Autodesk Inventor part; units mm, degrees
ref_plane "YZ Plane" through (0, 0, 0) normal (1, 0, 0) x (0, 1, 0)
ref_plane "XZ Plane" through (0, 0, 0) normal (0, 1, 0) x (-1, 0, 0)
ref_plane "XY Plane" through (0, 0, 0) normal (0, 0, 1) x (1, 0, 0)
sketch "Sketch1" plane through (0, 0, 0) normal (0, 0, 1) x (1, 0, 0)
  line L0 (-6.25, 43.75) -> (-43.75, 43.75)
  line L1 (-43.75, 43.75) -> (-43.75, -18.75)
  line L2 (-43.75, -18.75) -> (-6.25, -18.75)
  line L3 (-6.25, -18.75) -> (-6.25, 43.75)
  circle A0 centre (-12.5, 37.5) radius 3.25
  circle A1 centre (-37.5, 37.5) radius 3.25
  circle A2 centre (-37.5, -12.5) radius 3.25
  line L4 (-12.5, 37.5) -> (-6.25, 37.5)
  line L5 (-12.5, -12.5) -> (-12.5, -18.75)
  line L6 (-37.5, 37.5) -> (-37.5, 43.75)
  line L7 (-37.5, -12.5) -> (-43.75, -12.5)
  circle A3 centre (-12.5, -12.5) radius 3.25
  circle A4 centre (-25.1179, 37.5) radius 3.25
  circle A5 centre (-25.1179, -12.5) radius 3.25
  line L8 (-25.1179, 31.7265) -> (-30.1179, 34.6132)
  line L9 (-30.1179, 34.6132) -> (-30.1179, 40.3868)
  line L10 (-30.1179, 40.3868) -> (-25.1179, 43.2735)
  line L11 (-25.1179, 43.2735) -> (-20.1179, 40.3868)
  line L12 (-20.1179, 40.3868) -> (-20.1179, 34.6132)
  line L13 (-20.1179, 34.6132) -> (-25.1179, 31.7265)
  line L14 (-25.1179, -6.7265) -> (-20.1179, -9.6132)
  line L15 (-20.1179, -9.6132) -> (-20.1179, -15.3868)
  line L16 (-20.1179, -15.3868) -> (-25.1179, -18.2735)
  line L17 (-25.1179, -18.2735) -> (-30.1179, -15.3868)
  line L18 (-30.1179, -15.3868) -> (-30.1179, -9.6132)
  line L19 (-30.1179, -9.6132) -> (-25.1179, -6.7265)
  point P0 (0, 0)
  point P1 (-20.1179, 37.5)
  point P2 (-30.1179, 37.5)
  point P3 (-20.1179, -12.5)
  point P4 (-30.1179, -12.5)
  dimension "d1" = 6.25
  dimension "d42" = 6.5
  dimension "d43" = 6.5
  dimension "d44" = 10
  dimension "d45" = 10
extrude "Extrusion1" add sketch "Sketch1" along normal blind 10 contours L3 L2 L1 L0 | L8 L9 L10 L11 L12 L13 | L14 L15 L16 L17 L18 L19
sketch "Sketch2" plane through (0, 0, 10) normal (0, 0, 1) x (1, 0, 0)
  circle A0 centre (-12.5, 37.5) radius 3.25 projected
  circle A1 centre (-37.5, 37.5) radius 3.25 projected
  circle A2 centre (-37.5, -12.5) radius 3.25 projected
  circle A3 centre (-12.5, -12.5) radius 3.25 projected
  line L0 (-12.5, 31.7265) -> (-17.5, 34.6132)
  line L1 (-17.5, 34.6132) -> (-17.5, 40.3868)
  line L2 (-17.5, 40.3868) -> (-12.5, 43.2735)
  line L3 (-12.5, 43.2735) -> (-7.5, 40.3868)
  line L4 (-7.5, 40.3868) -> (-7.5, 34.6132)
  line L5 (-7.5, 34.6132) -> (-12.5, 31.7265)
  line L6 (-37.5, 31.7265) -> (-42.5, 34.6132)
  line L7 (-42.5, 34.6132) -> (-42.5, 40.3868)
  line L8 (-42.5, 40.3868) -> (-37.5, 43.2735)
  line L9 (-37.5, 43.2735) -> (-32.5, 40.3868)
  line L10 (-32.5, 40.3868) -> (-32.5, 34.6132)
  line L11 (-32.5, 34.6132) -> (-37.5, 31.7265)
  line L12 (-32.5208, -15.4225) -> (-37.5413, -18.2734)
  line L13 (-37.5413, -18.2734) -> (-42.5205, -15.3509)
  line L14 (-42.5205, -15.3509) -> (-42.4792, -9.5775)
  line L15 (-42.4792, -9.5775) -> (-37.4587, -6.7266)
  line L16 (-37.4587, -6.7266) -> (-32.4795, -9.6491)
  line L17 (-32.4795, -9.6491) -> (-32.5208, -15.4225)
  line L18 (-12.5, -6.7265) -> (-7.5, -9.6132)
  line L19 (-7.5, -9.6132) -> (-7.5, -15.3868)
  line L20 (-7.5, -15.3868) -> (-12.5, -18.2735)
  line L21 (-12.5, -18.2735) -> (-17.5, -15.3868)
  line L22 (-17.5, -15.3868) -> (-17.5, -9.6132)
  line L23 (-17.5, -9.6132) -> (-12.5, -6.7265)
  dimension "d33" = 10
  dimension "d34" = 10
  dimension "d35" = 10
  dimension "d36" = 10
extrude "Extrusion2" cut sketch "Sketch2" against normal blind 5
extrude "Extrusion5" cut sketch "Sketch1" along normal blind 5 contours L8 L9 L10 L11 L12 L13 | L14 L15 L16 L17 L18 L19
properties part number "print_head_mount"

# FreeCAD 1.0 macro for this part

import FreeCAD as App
import Part
import Sketcher

V = App.Vector
Q = App.Units.Quantity

doc = App.newDocument("Part")
body = doc.addObject("PartDesign::Body", "Body")

sketch1 = body.newObject("Sketcher::SketchObject", "Sketch")
sketch1.AttachmentSupport = (doc.getObject("XY_Plane"), [""])
sketch1.MapMode = "FlatFace"
sketch1.addGeometry(Part.LineSegment(V(-6.2, 37.5, 0), V(-6.2, 43.8, 0)), False)
sketch1.addGeometry(Part.LineSegment(V(-6.2, 43.8, 0), V(-37.5, 43.8, 0)), False)
sketch1.addGeometry(Part.LineSegment(V(-37.5, 43.8, 0), V(-43.8, 43.8, 0)), False)
sketch1.addGeometry(Part.LineSegment(V(-43.8, 43.8, 0), V(-43.8, -12.5, 0)), False)
sketch1.addGeometry(Part.LineSegment(V(-43.8, -12.5, 0), V(-43.8, -18.8, 0)), False)
sketch1.addGeometry(Part.LineSegment(V(-43.8, -18.8, 0), V(-12.5, -18.8, 0)), False)
sketch1.addGeometry(Part.LineSegment(V(-12.5, -18.8, 0), V(-6.2, -18.8, 0)), False)
sketch1.addGeometry(Part.LineSegment(V(-6.2, -18.8, 0), V(-6.2, 37.5, 0)), False)
sketch1.addGeometry(Part.Circle(V(-37.5, -12.5, 0), V(0, 0, 1), 3.2), False)
sketch1.addGeometry(Part.Circle(V(-12.5, -12.5, 0), V(0, 0, 1), 3.2), False)
sketch1.addGeometry(Part.Circle(V(-37.5, 37.5, 0), V(0, 0, 1), 3.2), False)
sketch1.addGeometry(Part.Circle(V(-12.5, 37.5, 0), V(0, 0, 1), 3.2), False)
sketch1.addGeometry(Part.Circle(V(-25.1, -12.5, 0), V(0, 0, 1), 3.2), False)
sketch1.addGeometry(Part.Circle(V(-25.1, 37.5, 0), V(0, 0, 1), 3.2), False)
sketch1.addConstraint(Sketcher.Constraint("Coincident", 0, 2, 1, 1))
sketch1.addConstraint(Sketcher.Constraint("Coincident", 1, 2, 2, 1))
sketch1.addConstraint(Sketcher.Constraint("Coincident", 2, 2, 3, 1))
sketch1.addConstraint(Sketcher.Constraint("Coincident", 3, 2, 4, 1))
sketch1.addConstraint(Sketcher.Constraint("Coincident", 4, 2, 5, 1))
sketch1.addConstraint(Sketcher.Constraint("Coincident", 5, 2, 6, 1))
sketch1.addConstraint(Sketcher.Constraint("Coincident", 6, 2, 7, 1))
sketch1.addConstraint(Sketcher.Constraint("Coincident", 7, 2, 0, 1))
sketch1.addConstraint(Sketcher.Constraint("Vertical", 0))
sketch1.addConstraint(Sketcher.Constraint("Horizontal", 1))
sketch1.addConstraint(Sketcher.Constraint("Horizontal", 2))
sketch1.addConstraint(Sketcher.Constraint("Vertical", 3))
sketch1.addConstraint(Sketcher.Constraint("Vertical", 4))
sketch1.addConstraint(Sketcher.Constraint("Horizontal", 5))
sketch1.addConstraint(Sketcher.Constraint("Horizontal", 6))
sketch1.addConstraint(Sketcher.Constraint("Vertical", 7))
sketch1.addConstraint(Sketcher.Constraint("Equal", 8, 9))
sketch1.addConstraint(Sketcher.Constraint("Equal", 9, 10))
sketch1.addConstraint(Sketcher.Constraint("Equal", 10, 11))
sketch1.addConstraint(Sketcher.Constraint("Equal", 11, 12))
sketch1.addConstraint(Sketcher.Constraint("Equal", 12, 13))
sketch1.addConstraint(Sketcher.Constraint("Horizontal", 8, 3, 9, 3))
sketch1.addConstraint(Sketcher.Constraint("Horizontal", 10, 3, 11, 3))
sketch1.addConstraint(Sketcher.Constraint("Horizontal", 9, 3, 12, 3))
sketch1.addConstraint(Sketcher.Constraint("Horizontal", 11, 3, 13, 3))
sketch1.addConstraint(Sketcher.Constraint("Horizontal", 12, 3, 3, 2))
sketch1.addConstraint(Sketcher.Constraint("Horizontal", 13, 3, 7, 2))
sketch1.addConstraint(Sketcher.Constraint("Vertical", 8, 3, 10, 3))
sketch1.addConstraint(Sketcher.Constraint("Vertical", 9, 3, 11, 3))
sketch1.addConstraint(Sketcher.Constraint("Vertical", 12, 3, 13, 3))
sketch1.addConstraint(Sketcher.Constraint("Vertical", 10, 3, 1, 2))
sketch1.addConstraint(Sketcher.Constraint("Vertical", 11, 3, 5, 2))
sketch1.addConstraint(Sketcher.Constraint("Equal", 1, 5))
sketch1.addConstraint(Sketcher.Constraint("Equal", 6, 0))
sketch1.addConstraint(Sketcher.Constraint("Equal", 0, 4))
sketch1.addConstraint(Sketcher.Constraint("Diameter", 8, 6.5))
sketch1.addConstraint(Sketcher.Constraint("DistanceX", 2, 2, 2, 1, 6.25))
sketch1.addConstraint(Sketcher.Constraint("DistanceX", 0, 2, -1, 1, 6.25))
sketch1.addConstraint(Sketcher.Constraint("DistanceX", 8, 3, 9, 3, 25.0))
sketch1.addConstraint(Sketcher.Constraint("DistanceY", 8, 3, 10, 3, 50.0))
sketch1.addConstraint(Sketcher.Constraint("DistanceY", 8, 3, -1, 1, 12.5))
sketch1.addConstraint(Sketcher.Constraint("DistanceX", 12, 3, -1, 1, 25.118))
pad1 = body.newObject("PartDesign::Pad", "Pad")
pad1.Profile = sketch1
pad1.Length = 10

sketch2 = body.newObject("Sketcher::SketchObject", "Sketch001")
sketch2.AttachmentSupport = (doc.getObject("XY_Plane"), [""])
sketch2.MapMode = "FlatFace"
sketch2.AttachmentOffset = App.Placement(V(0, 0, 10), App.Rotation())
sketch2.addGeometry(Part.LineSegment(V(-17.5, 34.6, 0), V(-12.5, 31.7, 0)), False)
sketch2.addGeometry(Part.LineSegment(V(-12.5, 31.7, 0), V(-7.5, 34.6, 0)), False)
sketch2.addGeometry(Part.LineSegment(V(-7.5, 34.6, 0), V(-7.5, 40.4, 0)), False)
sketch2.addGeometry(Part.LineSegment(V(-7.5, 40.4, 0), V(-12.5, 43.3, 0)), False)
sketch2.addGeometry(Part.LineSegment(V(-12.5, 43.3, 0), V(-17.5, 40.4, 0)), False)
sketch2.addGeometry(Part.LineSegment(V(-17.5, 40.4, 0), V(-17.5, 34.6, 0)), False)
sketch2.addGeometry(Part.Circle(V(-12.5, 37.5, 0), V(0, 0, 1), 3.2), False)
sketch2.addGeometry(Part.LineSegment(V(-42.5, 34.6, 0), V(-37.5, 31.7, 0)), False)
sketch2.addGeometry(Part.LineSegment(V(-37.5, 31.7, 0), V(-32.5, 34.6, 0)), False)
sketch2.addGeometry(Part.LineSegment(V(-32.5, 34.6, 0), V(-32.5, 40.4, 0)), False)
sketch2.addGeometry(Part.LineSegment(V(-32.5, 40.4, 0), V(-37.5, 43.3, 0)), False)
sketch2.addGeometry(Part.LineSegment(V(-37.5, 43.3, 0), V(-42.5, 40.4, 0)), False)
sketch2.addGeometry(Part.LineSegment(V(-42.5, 40.4, 0), V(-42.5, 34.6, 0)), False)
sketch2.addGeometry(Part.Circle(V(-37.5, 37.5, 0), V(0, 0, 1), 3.2), False)
sketch2.addGeometry(Part.LineSegment(V(-37.5, -18.3, 0), V(-32.5, -15.4, 0)), False)
sketch2.addGeometry(Part.LineSegment(V(-32.5, -15.4, 0), V(-32.5, -9.6, 0)), False)
sketch2.addGeometry(Part.LineSegment(V(-32.5, -9.6, 0), V(-37.5, -6.7, 0)), False)
sketch2.addGeometry(Part.LineSegment(V(-37.5, -6.7, 0), V(-42.5, -9.6, 0)), False)
sketch2.addGeometry(Part.LineSegment(V(-42.5, -9.6, 0), V(-42.5, -15.4, 0)), False)
sketch2.addGeometry(Part.LineSegment(V(-42.5, -15.4, 0), V(-37.5, -18.3, 0)), False)
sketch2.addGeometry(Part.Circle(V(-37.5, -12.5, 0), V(0, 0, 1), 3.2), False)
sketch2.addGeometry(Part.LineSegment(V(-7.5, -9.6, 0), V(-12.5, -6.7, 0)), False)
sketch2.addGeometry(Part.LineSegment(V(-12.5, -6.7, 0), V(-17.5, -9.6, 0)), False)
sketch2.addGeometry(Part.LineSegment(V(-17.5, -9.6, 0), V(-17.5, -15.4, 0)), False)
sketch2.addGeometry(Part.LineSegment(V(-17.5, -15.4, 0), V(-12.5, -18.3, 0)), False)
sketch2.addGeometry(Part.LineSegment(V(-12.5, -18.3, 0), V(-7.5, -15.4, 0)), False)
sketch2.addGeometry(Part.LineSegment(V(-7.5, -15.4, 0), V(-7.5, -9.6, 0)), False)
sketch2.addGeometry(Part.Circle(V(-12.5, -12.5, 0), V(0, 0, 1), 3.2), False)
sketch2.addConstraint(Sketcher.Constraint("Coincident", 0, 2, 1, 1))
sketch2.addConstraint(Sketcher.Constraint("Coincident", 1, 2, 2, 1))
sketch2.addConstraint(Sketcher.Constraint("Coincident", 2, 2, 3, 1))
sketch2.addConstraint(Sketcher.Constraint("Coincident", 3, 2, 4, 1))
sketch2.addConstraint(Sketcher.Constraint("Coincident", 4, 2, 5, 1))
sketch2.addConstraint(Sketcher.Constraint("Coincident", 5, 2, 0, 1))
sketch2.addConstraint(Sketcher.Constraint("Coincident", 7, 2, 8, 1))
sketch2.addConstraint(Sketcher.Constraint("Coincident", 8, 2, 9, 1))
sketch2.addConstraint(Sketcher.Constraint("Coincident", 9, 2, 10, 1))
sketch2.addConstraint(Sketcher.Constraint("Coincident", 10, 2, 11, 1))
sketch2.addConstraint(Sketcher.Constraint("Coincident", 11, 2, 12, 1))
sketch2.addConstraint(Sketcher.Constraint("Coincident", 12, 2, 7, 1))
sketch2.addConstraint(Sketcher.Constraint("Coincident", 14, 2, 15, 1))
sketch2.addConstraint(Sketcher.Constraint("Coincident", 15, 2, 16, 1))
sketch2.addConstraint(Sketcher.Constraint("Coincident", 16, 2, 17, 1))
sketch2.addConstraint(Sketcher.Constraint("Coincident", 17, 2, 18, 1))
sketch2.addConstraint(Sketcher.Constraint("Coincident", 18, 2, 19, 1))
sketch2.addConstraint(Sketcher.Constraint("Coincident", 19, 2, 14, 1))
sketch2.addConstraint(Sketcher.Constraint("Coincident", 21, 2, 22, 1))
sketch2.addConstraint(Sketcher.Constraint("Coincident", 22, 2, 23, 1))
sketch2.addConstraint(Sketcher.Constraint("Coincident", 23, 2, 24, 1))
sketch2.addConstraint(Sketcher.Constraint("Coincident", 24, 2, 25, 1))
sketch2.addConstraint(Sketcher.Constraint("Coincident", 25, 2, 26, 1))
sketch2.addConstraint(Sketcher.Constraint("Coincident", 26, 2, 21, 1))
sketch2.addConstraint(Sketcher.Constraint("Vertical", 2))
sketch2.addConstraint(Sketcher.Constraint("Vertical", 5))
sketch2.addConstraint(Sketcher.Constraint("Vertical", 9))
sketch2.addConstraint(Sketcher.Constraint("Vertical", 12))
sketch2.addConstraint(Sketcher.Constraint("Vertical", 23))
sketch2.addConstraint(Sketcher.Constraint("Vertical", 26))
sketch2.addConstraint(Sketcher.Constraint("Equal", 6, 13))
sketch2.addConstraint(Sketcher.Constraint("Equal", 13, 20))
sketch2.addConstraint(Sketcher.Constraint("Equal", 20, 27))
sketch2.addConstraint(Sketcher.Constraint("Parallel", 0, 3))
sketch2.addConstraint(Sketcher.Constraint("Parallel", 1, 4))
sketch2.addConstraint(Sketcher.Constraint("Parallel", 3, 7))
sketch2.addConstraint(Sketcher.Constraint("Parallel", 4, 8))
sketch2.addConstraint(Sketcher.Constraint("Parallel", 7, 10))
sketch2.addConstraint(Sketcher.Constraint("Parallel", 8, 11))
sketch2.addConstraint(Sketcher.Constraint("Parallel", 14, 17))
sketch2.addConstraint(Sketcher.Constraint("Parallel", 15, 18))
sketch2.addConstraint(Sketcher.Constraint("Parallel", 16, 19))
sketch2.addConstraint(Sketcher.Constraint("Parallel", 10, 21))
sketch2.addConstraint(Sketcher.Constraint("Parallel", 11, 22))
sketch2.addConstraint(Sketcher.Constraint("Parallel", 21, 24))
sketch2.addConstraint(Sketcher.Constraint("Parallel", 22, 25))
sketch2.addConstraint(Sketcher.Constraint("Horizontal", 6, 3, 13, 3))
sketch2.addConstraint(Sketcher.Constraint("Horizontal", 20, 3, 27, 3))
sketch2.addConstraint(Sketcher.Constraint("Horizontal", 2, 2, 4, 2))
sketch2.addConstraint(Sketcher.Constraint("Horizontal", 1, 2, 5, 2))
sketch2.addConstraint(Sketcher.Constraint("Horizontal", 0, 2, 7, 2))
sketch2.addConstraint(Sketcher.Constraint("Horizontal", 5, 2, 8, 2))
sketch2.addConstraint(Sketcher.Constraint("Horizontal", 4, 2, 9, 2))
sketch2.addConstraint(Sketcher.Constraint("Horizontal", 3, 2, 10, 2))
sketch2.addConstraint(Sketcher.Constraint("Horizontal", 9, 2, 11, 2))
sketch2.addConstraint(Sketcher.Constraint("Horizontal", 16, 2, 21, 2))
sketch2.addConstraint(Sketcher.Constraint("Horizontal", 19, 2, 24, 2))
sketch2.addConstraint(Sketcher.Constraint("Horizontal", 23, 2, 25, 2))
sketch2.addConstraint(Sketcher.Constraint("Horizontal", 22, 2, 26, 2))
sketch2.addConstraint(Sketcher.Constraint("Vertical", 13, 3, 20, 3))
sketch2.addConstraint(Sketcher.Constraint("Vertical", 6, 3, 27, 3))
sketch2.addConstraint(Sketcher.Constraint("Vertical", 27, 3, 0, 2))
sketch2.addConstraint(Sketcher.Constraint("Vertical", 0, 2, 3, 2))
sketch2.addConstraint(Sketcher.Constraint("Vertical", 20, 3, 7, 2))
sketch2.addConstraint(Sketcher.Constraint("Vertical", 3, 2, 21, 2))
sketch2.addConstraint(Sketcher.Constraint("Vertical", 5, 2, 22, 2))
sketch2.addConstraint(Sketcher.Constraint("Equal", 12, 23))
sketch2.addConstraint(Sketcher.Constraint("Equal", 11, 14))
sketch2.addConstraint(Sketcher.Constraint("Equal", 14, 15))
sketch2.addConstraint(Sketcher.Constraint("Equal", 15, 16))
sketch2.addConstraint(Sketcher.Constraint("Equal", 16, 17))
sketch2.addConstraint(Sketcher.Constraint("DistanceX", 4, 2, 2, 2, 10.0))
sketch2.addConstraint(Sketcher.Constraint("Diameter", 6, 6.5))
sketch2.addConstraint(Sketcher.Constraint("Angle", 0, Q("-29.9996 deg")))
sketch2.addConstraint(Sketcher.Constraint("DistanceX", 13, 3, 6, 3, 25.0))
sketch2.addConstraint(Sketcher.Constraint("DistanceY", 20, 3, 13, 3, 50.0))
sketch2.addConstraint(Sketcher.Constraint("DistanceX", 6, 3, -1, 1, 12.5))
sketch2.addConstraint(Sketcher.Constraint("DistanceY", -1, 1, 6, 3, 37.5))
sketch2.addConstraint(Sketcher.Constraint("Angle", 14, Q("29.5902 deg")))
sketch2.addConstraint(Sketcher.Constraint("Angle", 15, Q("89.5901 deg")))
sketch2.addConstraint(Sketcher.Constraint("Angle", 16, Q("149.5896 deg")))
sketch2.addConstraint(Sketcher.Constraint("DistanceY", 15, 2, -1, 1, 9.649))
sketch2.addConstraint(Sketcher.Constraint("DistanceY", 14, 2, 7, 2, 47.149))
sketch2.addConstraint(Sketcher.Constraint("DistanceX", 14, 2, -1, 1, 32.5208))
pocket1 = body.newObject("PartDesign::Pocket", "Pocket")
pocket1.Profile = sketch2
pocket1.Length = 5

sketch3 = body.newObject("Sketcher::SketchObject", "Sketch002")
sketch3.AttachmentSupport = (doc.getObject("XY_Plane"), [""])
sketch3.MapMode = "FlatFace"
sketch3.addGeometry(Part.LineSegment(V(-30.1, 34.6, 0), V(-25.1, 31.7, 0)), False)
sketch3.addGeometry(Part.LineSegment(V(-25.1, 31.7, 0), V(-20.1, 34.6, 0)), False)
sketch3.addGeometry(Part.LineSegment(V(-20.1, 34.6, 0), V(-20.1, 40.4, 0)), False)
sketch3.addGeometry(Part.LineSegment(V(-20.1, 40.4, 0), V(-25.1, 43.3, 0)), False)
sketch3.addGeometry(Part.LineSegment(V(-25.1, 43.3, 0), V(-30.1, 40.4, 0)), False)
sketch3.addGeometry(Part.LineSegment(V(-30.1, 40.4, 0), V(-30.1, 34.6, 0)), False)
sketch3.addGeometry(Part.Circle(V(-25.1, 37.5, 0), V(0, 0, 1), 3.2), False)
sketch3.addGeometry(Part.LineSegment(V(-20.1, -9.6, 0), V(-25.1, -6.7, 0)), False)
sketch3.addGeometry(Part.LineSegment(V(-25.1, -6.7, 0), V(-30.1, -9.6, 0)), False)
sketch3.addGeometry(Part.LineSegment(V(-30.1, -9.6, 0), V(-30.1, -15.4, 0)), False)
sketch3.addGeometry(Part.LineSegment(V(-30.1, -15.4, 0), V(-25.1, -18.3, 0)), False)
sketch3.addGeometry(Part.LineSegment(V(-25.1, -18.3, 0), V(-20.1, -15.4, 0)), False)
sketch3.addGeometry(Part.LineSegment(V(-20.1, -15.4, 0), V(-20.1, -9.6, 0)), False)
sketch3.addGeometry(Part.Circle(V(-25.1, -12.5, 0), V(0, 0, 1), 3.2), False)
sketch3.addConstraint(Sketcher.Constraint("Coincident", 0, 2, 1, 1))
sketch3.addConstraint(Sketcher.Constraint("Coincident", 1, 2, 2, 1))
sketch3.addConstraint(Sketcher.Constraint("Coincident", 2, 2, 3, 1))
sketch3.addConstraint(Sketcher.Constraint("Coincident", 3, 2, 4, 1))
sketch3.addConstraint(Sketcher.Constraint("Coincident", 4, 2, 5, 1))
sketch3.addConstraint(Sketcher.Constraint("Coincident", 5, 2, 0, 1))
sketch3.addConstraint(Sketcher.Constraint("Coincident", 7, 2, 8, 1))
sketch3.addConstraint(Sketcher.Constraint("Coincident", 8, 2, 9, 1))
sketch3.addConstraint(Sketcher.Constraint("Coincident", 9, 2, 10, 1))
sketch3.addConstraint(Sketcher.Constraint("Coincident", 10, 2, 11, 1))
sketch3.addConstraint(Sketcher.Constraint("Coincident", 11, 2, 12, 1))
sketch3.addConstraint(Sketcher.Constraint("Coincident", 12, 2, 7, 1))
sketch3.addConstraint(Sketcher.Constraint("Vertical", 2))
sketch3.addConstraint(Sketcher.Constraint("Vertical", 5))
sketch3.addConstraint(Sketcher.Constraint("Vertical", 9))
sketch3.addConstraint(Sketcher.Constraint("Vertical", 12))
sketch3.addConstraint(Sketcher.Constraint("Equal", 6, 13))
sketch3.addConstraint(Sketcher.Constraint("Parallel", 0, 3))
sketch3.addConstraint(Sketcher.Constraint("Parallel", 1, 4))
sketch3.addConstraint(Sketcher.Constraint("Parallel", 3, 7))
sketch3.addConstraint(Sketcher.Constraint("Parallel", 4, 8))
sketch3.addConstraint(Sketcher.Constraint("Parallel", 7, 10))
sketch3.addConstraint(Sketcher.Constraint("Parallel", 8, 11))
sketch3.addConstraint(Sketcher.Constraint("Horizontal", 2, 2, 4, 2))
sketch3.addConstraint(Sketcher.Constraint("Horizontal", 1, 2, 5, 2))
sketch3.addConstraint(Sketcher.Constraint("Horizontal", 9, 2, 11, 2))
sketch3.addConstraint(Sketcher.Constraint("Horizontal", 8, 2, 12, 2))
sketch3.addConstraint(Sketcher.Constraint("Vertical", 6, 3, 13, 3))
sketch3.addConstraint(Sketcher.Constraint("Vertical", 13, 3, 0, 2))
sketch3.addConstraint(Sketcher.Constraint("Vertical", 0, 2, 3, 2))
sketch3.addConstraint(Sketcher.Constraint("Vertical", 3, 2, 7, 2))
sketch3.addConstraint(Sketcher.Constraint("Vertical", 5, 2, 8, 2))
sketch3.addConstraint(Sketcher.Constraint("Equal", 5, 9))
sketch3.addConstraint(Sketcher.Constraint("Diameter", 6, 6.5))
sketch3.addConstraint(Sketcher.Constraint("DistanceX", 4, 2, 2, 2, 10.0))
sketch3.addConstraint(Sketcher.Constraint("Angle", 0, Q("-29.9996 deg")))
sketch3.addConstraint(Sketcher.Constraint("DistanceY", 13, 3, 6, 3, 50.0))
sketch3.addConstraint(Sketcher.Constraint("DistanceY", 9, 2, 5, 2, 50.0))
sketch3.addConstraint(Sketcher.Constraint("DistanceY", -1, 1, 6, 3, 37.5))
sketch3.addConstraint(Sketcher.Constraint("DistanceY", 2, 1, 2, 2, 5.7736))
sketch3.addConstraint(Sketcher.Constraint("DistanceX", 6, 3, -1, 1, 25.118))
sketch3.addConstraint(Sketcher.Constraint("DistanceY", -1, 1, 0, 2, 31.7265))
pocket2 = body.newObject("PartDesign::Pocket", "Pocket001")
pocket2.Profile = sketch3
pocket2.Length = 5
pocket2.Reversed = True

doc.recompute()
